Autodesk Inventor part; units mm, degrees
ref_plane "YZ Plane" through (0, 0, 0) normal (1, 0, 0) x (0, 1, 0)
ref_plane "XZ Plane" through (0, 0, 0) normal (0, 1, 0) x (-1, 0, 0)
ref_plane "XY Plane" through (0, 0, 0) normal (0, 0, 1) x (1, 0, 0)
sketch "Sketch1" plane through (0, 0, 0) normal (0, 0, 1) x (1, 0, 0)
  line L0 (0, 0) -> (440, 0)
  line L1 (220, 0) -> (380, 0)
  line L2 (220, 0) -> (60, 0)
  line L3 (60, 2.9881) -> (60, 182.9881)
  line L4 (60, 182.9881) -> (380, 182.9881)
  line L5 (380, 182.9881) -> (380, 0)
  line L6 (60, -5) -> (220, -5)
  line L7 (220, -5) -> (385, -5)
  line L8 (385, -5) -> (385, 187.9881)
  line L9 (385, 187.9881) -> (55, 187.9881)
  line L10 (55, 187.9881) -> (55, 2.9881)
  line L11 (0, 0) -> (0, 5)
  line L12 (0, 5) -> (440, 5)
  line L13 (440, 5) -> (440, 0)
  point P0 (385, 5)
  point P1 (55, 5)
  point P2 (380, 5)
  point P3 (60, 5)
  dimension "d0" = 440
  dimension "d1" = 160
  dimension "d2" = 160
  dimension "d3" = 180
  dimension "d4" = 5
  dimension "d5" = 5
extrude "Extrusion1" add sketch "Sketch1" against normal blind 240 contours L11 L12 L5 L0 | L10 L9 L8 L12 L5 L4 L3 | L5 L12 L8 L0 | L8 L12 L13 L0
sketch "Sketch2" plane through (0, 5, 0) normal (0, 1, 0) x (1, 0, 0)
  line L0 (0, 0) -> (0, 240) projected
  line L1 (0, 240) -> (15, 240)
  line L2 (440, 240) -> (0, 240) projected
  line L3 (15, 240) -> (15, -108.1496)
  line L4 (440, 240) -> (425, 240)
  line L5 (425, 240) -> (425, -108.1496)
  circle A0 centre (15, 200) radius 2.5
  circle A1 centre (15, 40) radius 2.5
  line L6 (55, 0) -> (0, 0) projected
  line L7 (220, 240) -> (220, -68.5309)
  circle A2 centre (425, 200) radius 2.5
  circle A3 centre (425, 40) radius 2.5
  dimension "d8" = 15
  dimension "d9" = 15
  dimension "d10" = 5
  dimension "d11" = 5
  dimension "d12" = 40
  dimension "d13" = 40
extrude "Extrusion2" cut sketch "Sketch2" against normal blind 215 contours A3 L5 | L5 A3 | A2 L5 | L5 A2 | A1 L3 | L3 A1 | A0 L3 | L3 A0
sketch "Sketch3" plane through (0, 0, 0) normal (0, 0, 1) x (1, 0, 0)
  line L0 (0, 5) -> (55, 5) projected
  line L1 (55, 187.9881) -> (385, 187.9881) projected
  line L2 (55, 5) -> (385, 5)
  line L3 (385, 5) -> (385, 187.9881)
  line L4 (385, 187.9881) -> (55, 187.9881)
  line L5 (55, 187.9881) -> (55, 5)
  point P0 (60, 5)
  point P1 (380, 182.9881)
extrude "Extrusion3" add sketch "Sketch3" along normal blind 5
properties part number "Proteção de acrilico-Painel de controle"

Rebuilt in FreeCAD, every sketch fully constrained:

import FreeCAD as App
import Part
import Sketcher

V = App.Vector
Q = App.Units.Quantity


def add_polygon(sketch, points):
    """Adds a closed chain of lines whose ends are joined by coincident constraints."""
    first, n = sketch.GeometryCount, len(points)
    for a, b in zip(points, points[1:] + points[:1]):
        sketch.addGeometry(Part.LineSegment(App.Vector(*a, 0), App.Vector(*b, 0)), False)
    for i in range(n):
        sketch.addConstraint(Sketcher.Constraint("Coincident", first + i, 2, first + (i + 1) % n, 1))

doc = App.newDocument("Part")
params = doc.addObject("Spreadsheet::Sheet", "Params")
for row, (alias, value) in enumerate([
    ("sketch1_width", "440 mm"),
    ("sketch1_height", "5 mm"),
    ("sketch1_width2", "55 mm"),
    ("pad1_length", "240 mm"),
    ("sketch2_diameter", "5 mm"),
    ("pocket1_length", "215 mm"),
    ("sketch3_width", "330 mm"),
    ("pad2_length", "5 mm"),
], start=1):
    params.set(f"A{row}", alias)
    params.set(f"B{row}", "=" + value)
    params.setAlias(f"B{row}", alias)

body = doc.addObject("PartDesign::Body", "Body")

sketch1 = doc.addObject("Sketcher::SketchObject", "Sketch")
body.addObject(sketch1)
sketch1.AttachmentSupport = (doc.XY_Plane, [""])
sketch1.MapMode = "FlatFace"
add_polygon(sketch1, [(0, 5), (0, 0), (440, 0), (440, 5), (385, 5), (385, 188), (55, 188), (55, 5)])
add_polygon(sketch1, [(380, 5), (60, 5), (60, 183), (380, 183)])
sketch1.addConstraint([
    Sketcher.Constraint("Vertical", 0),
    Sketcher.Constraint("Horizontal", 1),
    Sketcher.Constraint("Vertical", 2),
    Sketcher.Constraint("Horizontal", 3),
    Sketcher.Constraint("Vertical", 4),
    Sketcher.Constraint("Horizontal", 5),
    Sketcher.Constraint("Vertical", 6),
    Sketcher.Constraint("Horizontal", 7),
    Sketcher.Constraint("Horizontal", 8),
    Sketcher.Constraint("Vertical", 9),
    Sketcher.Constraint("Horizontal", 10),
    Sketcher.Constraint("Vertical", 11),
    Sketcher.Constraint("Coincident", 0, 2, -1, 1),
    Sketcher.Constraint("Horizontal", 3, 2, 6, 2),
    Sketcher.Constraint("Horizontal", 7, 2, 8, 2),
    Sketcher.Constraint("Equal", 3, 7),
    Sketcher.Constraint("DistanceX", 1, 1, 1, 2, Q("440 mm")),
    Sketcher.Constraint("DistanceY", 0, 2, 0, 1, Q("5 mm")),
    Sketcher.Constraint("DistanceX", 6, 2, 8, 2, Q("5 mm")),
    Sketcher.Constraint("DistanceY", 9, 2, 5, 2, Q("5 mm")),
    Sketcher.Constraint("DistanceX", 10, 2, 4, 2, Q("5 mm")),
    Sketcher.Constraint("DistanceX", 3, 2, 3, 1, Q("55 mm")),
    Sketcher.Constraint("DistanceY", 4, 1, 4, 2, Q("182.988 mm")),
])
sketch1.setExpression("Constraints[28]", "Params.sketch1_width")
sketch1.setExpression("Constraints[29]", "Params.sketch1_height")
sketch1.setExpression("Constraints[33]", "Params.sketch1_width2")
pad1 = doc.addObject("PartDesign::Pad", "Pad")
body.addObject(pad1)
pad1.Profile = sketch1
pad1.setExpression("Length", "Params.pad1_length")
pad1.Reversed = True

sketch2 = doc.addObject("Sketcher::SketchObject", "Sketch001")
body.addObject(sketch2)
sketch2.AttachmentSupport = (doc.XZ_Plane, [""])
sketch2.MapMode = "FlatFace"
sketch2.AttachmentOffset = App.Placement(V(0, 0, -5), App.Rotation())
sketch2.addGeometry([
    Part.Circle(V(425, -40, 0), V(0, 0, 1), 2.5),
    Part.Circle(V(425, -200, 0), V(0, 0, 1), 2.5),
    Part.Circle(V(15, -40, 0), V(0, 0, 1), 2.5),
    Part.Circle(V(15, -200, 0), V(0, 0, 1), 2.5),
], False)
sketch2.addConstraint([
    Sketcher.Constraint("Equal", 0, 1),
    Sketcher.Constraint("Equal", 1, 2),
    Sketcher.Constraint("Equal", 2, 3),
    Sketcher.Constraint("Horizontal", 0, 3, 2, 3),
    Sketcher.Constraint("Horizontal", 1, 3, 3, 3),
    Sketcher.Constraint("Vertical", 0, 3, 1, 3),
    Sketcher.Constraint("Vertical", 2, 3, 3, 3),
    Sketcher.Constraint("Diameter", 0, Q("5 mm")),
    Sketcher.Constraint("DistanceY", 0, 3, -1, 1, Q("40 mm")),
    Sketcher.Constraint("DistanceX", -1, 1, 2, 3, Q("15 mm")),
    Sketcher.Constraint("DistanceX", -1, 1, 0, 3, Q("425 mm")),
    Sketcher.Constraint("DistanceY", 1, 3, -1, 1, Q("200 mm")),
])
sketch2.setExpression("Constraints[7]", "Params.sketch2_diameter")
pocket1 = doc.addObject("PartDesign::Pocket", "Pocket")
body.addObject(pocket1)
pocket1.Profile = sketch2
pocket1.setExpression("Length", "Params.pocket1_length")
pocket1.Reversed = True

sketch3 = doc.addObject("Sketcher::SketchObject", "Sketch002")
body.addObject(sketch3)
sketch3.AttachmentSupport = (doc.XY_Plane, [""])
sketch3.MapMode = "FlatFace"
add_polygon(sketch3, [(385, 188), (55, 188), (55, 5), (385, 5)])
sketch3.addConstraint([
    Sketcher.Constraint("Horizontal", 0),
    Sketcher.Constraint("Vertical", 1),
    Sketcher.Constraint("Horizontal", 2),
    Sketcher.Constraint("Vertical", 3),
    Sketcher.Constraint("DistanceX", 0, 2, 0, 1, Q("330 mm")),
    Sketcher.Constraint("DistanceX", -1, 1, 0, 2, Q("55 mm")),
    Sketcher.Constraint("DistanceY", -1, 1, 1, 2, Q("5 mm")),
    Sketcher.Constraint("DistanceY", 1, 2, 1, 1, Q("182.988 mm")),
])
sketch3.setExpression("Constraints[8]", "Params.sketch3_width")
pad2 = doc.addObject("PartDesign::Pad", "Pad001")
body.addObject(pad2)
pad2.Profile = sketch3
pad2.setExpression("Length", "Params.pad2_length")

doc.recompute()
